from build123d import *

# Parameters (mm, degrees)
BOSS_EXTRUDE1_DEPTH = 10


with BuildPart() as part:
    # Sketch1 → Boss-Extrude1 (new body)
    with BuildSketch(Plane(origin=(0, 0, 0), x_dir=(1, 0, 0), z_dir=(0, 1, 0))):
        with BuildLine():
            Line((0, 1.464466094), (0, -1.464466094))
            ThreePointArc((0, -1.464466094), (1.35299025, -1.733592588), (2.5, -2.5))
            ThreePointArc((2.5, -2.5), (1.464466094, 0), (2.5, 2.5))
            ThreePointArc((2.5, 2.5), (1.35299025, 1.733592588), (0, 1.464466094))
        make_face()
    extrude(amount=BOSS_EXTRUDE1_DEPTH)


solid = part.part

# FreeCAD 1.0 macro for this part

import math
import FreeCAD as App
import Part
import Sketcher
from FreeCAD import Vector
Q = App.Units.Quantity

doc = App.newDocument("Part")
body = doc.addObject("PartDesign::Body", "Body")

# Sketch on XZ plane
sketch1 = body.newObject("Sketcher::SketchObject", "Sketch")
sketch1.AttachmentSupport = (doc.getObject("XZ_Plane"), [""])
sketch1.MapMode = "FlatFace"
sketch1.addGeometry(Part.LineSegment(Vector(0, -1.464466, 0), Vector(0, 1.464466, 0)), False)
sketch1.addGeometry(Part.ArcOfCircle(Part.Circle(Vector(0, 5, 0), Vector(0, 0, 1), 3.535534), math.radians(-90), math.radians(-45)), False)
sketch1.addGeometry(Part.ArcOfCircle(Part.Circle(Vector(5, 0, 0), Vector(0, 0, 1), 3.535534), math.radians(135), math.radians(225)), False)
sketch1.addGeometry(Part.ArcOfCircle(Part.Circle(Vector(0, -5, 0), Vector(0, 0, 1), 3.535534), math.radians(45), math.radians(90)), False)
sketch1.addConstraint(Sketcher.Constraint("Coincident", 0, 2, 1, 1))
sketch1.addConstraint(Sketcher.Constraint("Tangent", 1, 2, 2, 1))
sketch1.addConstraint(Sketcher.Constraint("Tangent", 2, 2, 3, 1))
sketch1.addConstraint(Sketcher.Constraint("Coincident", 3, 2, 0, 1))
sketch1.addConstraint(Sketcher.Constraint("Vertical", 0))
sketch1.addConstraint(Sketcher.Constraint("Equal", 1, 2))
sketch1.addConstraint(Sketcher.Constraint("Equal", 2, 3))
sketch1.addConstraint(Sketcher.Constraint("Symmetric", 1, 3, 3, 3, -1, 1))
sketch1.addConstraint(Sketcher.Constraint("PointOnObject", 1, 3, -2))
sketch1.addConstraint(Sketcher.Constraint("PointOnObject", 0, 2, -2))
sketch1.addConstraint(Sketcher.Constraint("DistanceY", -1, 1, 1, 3, Q("5 mm")))
sketch1.addConstraint(Sketcher.Constraint("DistanceX", -1, 1, 2, 3, Q("5 mm")))
pad1 = body.newObject("PartDesign::Pad", "Pad")
pad1.Profile = sketch1
pad1.Length = 10
pad1.Reversed = True

doc.recompute()
